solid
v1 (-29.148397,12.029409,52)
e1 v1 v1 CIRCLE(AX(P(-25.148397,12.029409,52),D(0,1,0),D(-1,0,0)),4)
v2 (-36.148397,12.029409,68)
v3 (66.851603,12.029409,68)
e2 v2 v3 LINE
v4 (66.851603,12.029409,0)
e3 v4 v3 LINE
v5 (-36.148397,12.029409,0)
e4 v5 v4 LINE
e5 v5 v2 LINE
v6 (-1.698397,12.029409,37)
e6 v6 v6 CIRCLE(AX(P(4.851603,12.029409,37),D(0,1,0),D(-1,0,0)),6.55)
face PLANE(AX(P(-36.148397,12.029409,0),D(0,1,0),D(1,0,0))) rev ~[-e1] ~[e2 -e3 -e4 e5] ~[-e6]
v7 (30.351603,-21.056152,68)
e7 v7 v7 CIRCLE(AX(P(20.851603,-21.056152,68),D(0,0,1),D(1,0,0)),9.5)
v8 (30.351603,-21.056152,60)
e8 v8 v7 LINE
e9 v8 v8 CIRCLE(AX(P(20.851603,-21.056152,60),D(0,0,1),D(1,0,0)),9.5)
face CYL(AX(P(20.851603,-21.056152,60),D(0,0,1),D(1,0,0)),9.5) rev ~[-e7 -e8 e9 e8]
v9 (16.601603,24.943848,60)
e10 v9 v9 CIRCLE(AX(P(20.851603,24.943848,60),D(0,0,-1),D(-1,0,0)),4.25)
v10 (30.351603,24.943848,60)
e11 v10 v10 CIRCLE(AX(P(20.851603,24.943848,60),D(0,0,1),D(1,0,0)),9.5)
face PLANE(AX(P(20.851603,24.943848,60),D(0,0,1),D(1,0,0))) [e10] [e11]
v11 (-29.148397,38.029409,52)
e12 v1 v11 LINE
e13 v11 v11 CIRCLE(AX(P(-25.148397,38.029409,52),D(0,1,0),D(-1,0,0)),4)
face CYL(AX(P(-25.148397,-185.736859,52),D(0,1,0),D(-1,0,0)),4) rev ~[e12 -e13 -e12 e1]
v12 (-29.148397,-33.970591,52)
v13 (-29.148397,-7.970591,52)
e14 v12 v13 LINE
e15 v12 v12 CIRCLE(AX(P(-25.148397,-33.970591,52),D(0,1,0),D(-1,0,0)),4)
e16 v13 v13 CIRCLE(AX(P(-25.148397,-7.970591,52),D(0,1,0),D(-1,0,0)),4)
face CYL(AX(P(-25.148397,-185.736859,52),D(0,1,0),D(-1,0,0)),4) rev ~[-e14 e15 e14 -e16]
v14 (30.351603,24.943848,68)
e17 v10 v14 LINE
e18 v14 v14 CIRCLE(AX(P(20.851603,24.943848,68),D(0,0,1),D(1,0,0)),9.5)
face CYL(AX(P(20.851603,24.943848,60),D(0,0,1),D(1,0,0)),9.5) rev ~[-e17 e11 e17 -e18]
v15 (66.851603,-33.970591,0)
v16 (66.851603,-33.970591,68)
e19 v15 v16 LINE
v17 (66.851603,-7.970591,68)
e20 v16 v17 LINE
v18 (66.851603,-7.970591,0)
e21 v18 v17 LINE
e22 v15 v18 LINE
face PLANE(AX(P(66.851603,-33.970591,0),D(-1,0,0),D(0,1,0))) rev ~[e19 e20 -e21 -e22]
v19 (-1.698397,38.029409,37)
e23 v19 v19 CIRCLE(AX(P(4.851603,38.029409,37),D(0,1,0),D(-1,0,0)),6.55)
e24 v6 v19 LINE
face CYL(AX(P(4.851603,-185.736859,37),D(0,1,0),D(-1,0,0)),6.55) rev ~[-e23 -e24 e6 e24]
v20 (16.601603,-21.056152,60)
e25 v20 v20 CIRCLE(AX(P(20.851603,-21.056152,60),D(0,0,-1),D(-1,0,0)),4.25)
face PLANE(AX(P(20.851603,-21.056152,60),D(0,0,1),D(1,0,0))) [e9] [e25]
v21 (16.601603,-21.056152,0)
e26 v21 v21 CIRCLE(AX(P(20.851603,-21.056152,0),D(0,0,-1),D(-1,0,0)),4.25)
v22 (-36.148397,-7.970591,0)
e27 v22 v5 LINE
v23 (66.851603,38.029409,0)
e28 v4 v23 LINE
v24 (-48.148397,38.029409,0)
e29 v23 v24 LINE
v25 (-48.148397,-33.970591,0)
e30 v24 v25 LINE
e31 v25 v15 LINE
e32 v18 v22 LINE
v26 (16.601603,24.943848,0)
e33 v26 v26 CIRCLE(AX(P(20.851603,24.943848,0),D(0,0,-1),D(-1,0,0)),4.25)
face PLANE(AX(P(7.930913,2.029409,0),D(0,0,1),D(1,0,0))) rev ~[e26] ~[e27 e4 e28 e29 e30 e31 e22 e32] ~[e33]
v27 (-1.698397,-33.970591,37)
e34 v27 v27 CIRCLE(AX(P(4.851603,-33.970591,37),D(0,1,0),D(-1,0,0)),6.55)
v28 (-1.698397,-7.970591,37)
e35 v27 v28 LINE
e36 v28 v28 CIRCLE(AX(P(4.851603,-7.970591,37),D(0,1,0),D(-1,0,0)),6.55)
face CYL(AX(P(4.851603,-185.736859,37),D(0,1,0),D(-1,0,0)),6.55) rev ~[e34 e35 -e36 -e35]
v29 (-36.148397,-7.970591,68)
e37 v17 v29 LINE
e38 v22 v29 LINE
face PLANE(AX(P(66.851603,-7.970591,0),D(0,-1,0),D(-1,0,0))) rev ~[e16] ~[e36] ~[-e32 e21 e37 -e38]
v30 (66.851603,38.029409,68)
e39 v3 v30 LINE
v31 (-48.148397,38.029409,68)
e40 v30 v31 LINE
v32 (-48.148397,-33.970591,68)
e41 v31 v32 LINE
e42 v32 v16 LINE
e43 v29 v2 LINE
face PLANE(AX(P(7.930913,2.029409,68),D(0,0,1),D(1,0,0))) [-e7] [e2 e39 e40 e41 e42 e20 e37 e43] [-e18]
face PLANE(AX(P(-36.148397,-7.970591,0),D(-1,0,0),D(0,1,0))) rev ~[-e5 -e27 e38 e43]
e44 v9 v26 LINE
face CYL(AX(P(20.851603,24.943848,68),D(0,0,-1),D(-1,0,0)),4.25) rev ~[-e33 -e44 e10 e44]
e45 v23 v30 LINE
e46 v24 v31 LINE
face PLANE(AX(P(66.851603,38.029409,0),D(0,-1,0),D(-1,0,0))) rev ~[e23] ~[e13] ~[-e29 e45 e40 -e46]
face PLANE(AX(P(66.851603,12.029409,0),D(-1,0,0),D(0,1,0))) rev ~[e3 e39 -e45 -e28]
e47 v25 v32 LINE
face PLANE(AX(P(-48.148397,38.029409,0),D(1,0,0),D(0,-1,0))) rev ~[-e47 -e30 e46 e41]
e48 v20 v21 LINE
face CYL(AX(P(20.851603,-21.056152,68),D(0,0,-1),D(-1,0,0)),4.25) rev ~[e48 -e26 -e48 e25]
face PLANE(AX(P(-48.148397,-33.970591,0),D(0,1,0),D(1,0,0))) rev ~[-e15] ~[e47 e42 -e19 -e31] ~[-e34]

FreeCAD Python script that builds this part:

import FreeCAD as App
import Part
import Sketcher

V = App.Vector

doc = App.newDocument("Part")
body = doc.addObject("PartDesign::Body", "Body")

# Sketch on XY plane
sketch1 = doc.addObject("Sketcher::SketchObject", "Sketch")
body.addObject(sketch1)
sketch1.AttachmentSupport = (doc.XY_Plane, [""])
sketch1.MapMode = "FlatFace"
sketch1.addGeometry(Part.LineSegment(V(66.851603, 12.029409, 0), V(66.851603, 38.029409, 0)), False)
sketch1.addGeometry(Part.LineSegment(V(66.851603, 38.029409, 0), V(-48.148397, 38.029409, 0)), False)
sketch1.addGeometry(Part.LineSegment(V(-48.148397, 38.029409, 0), V(-48.148397, -33.970591, 0)), False)
sketch1.addGeometry(Part.LineSegment(V(-48.148397, -33.970591, 0), V(66.851603, -33.970591, 0)), False)
sketch1.addGeometry(Part.LineSegment(V(66.851603, -33.970591, 0), V(66.851603, -7.970591, 0)), False)
sketch1.addGeometry(Part.LineSegment(V(66.851603, -7.970591, 0), V(-36.148397, -7.970591, 0)), False)
sketch1.addGeometry(Part.LineSegment(V(-36.148397, -7.970591, 0), V(-36.148397, 12.029409, 0)), False)
sketch1.addGeometry(Part.LineSegment(V(-36.148397, 12.029409, 0), V(66.851603, 12.029409, 0)), False)
sketch1.addConstraint(Sketcher.Constraint("Coincident", 0, 2, 1, 1))
sketch1.addConstraint(Sketcher.Constraint("Coincident", 1, 2, 2, 1))
sketch1.addConstraint(Sketcher.Constraint("Coincident", 2, 2, 3, 1))
sketch1.addConstraint(Sketcher.Constraint("Coincident", 3, 2, 4, 1))
sketch1.addConstraint(Sketcher.Constraint("Coincident", 4, 2, 5, 1))
sketch1.addConstraint(Sketcher.Constraint("Coincident", 5, 2, 6, 1))
sketch1.addConstraint(Sketcher.Constraint("Coincident", 6, 2, 7, 1))
sketch1.addConstraint(Sketcher.Constraint("Coincident", 7, 2, 0, 1))
sketch1.addConstraint(Sketcher.Constraint("Vertical", 0))
sketch1.addConstraint(Sketcher.Constraint("Horizontal", 1))
sketch1.addConstraint(Sketcher.Constraint("Vertical", 2))
sketch1.addConstraint(Sketcher.Constraint("Horizontal", 3))
sketch1.addConstraint(Sketcher.Constraint("Vertical", 4))
sketch1.addConstraint(Sketcher.Constraint("Horizontal", 5))
sketch1.addConstraint(Sketcher.Constraint("Vertical", 6))
sketch1.addConstraint(Sketcher.Constraint("Horizontal", 7))
sketch1.addConstraint(Sketcher.Constraint("Vertical", 0, 2, 3, 2))
sketch1.addConstraint(Sketcher.Constraint("Equal", 0, 4))
sketch1.addConstraint(Sketcher.Constraint("DistanceX", 1, 2, 1, 1, 115.0))
sketch1.addConstraint(Sketcher.Constraint("DistanceX", 5, 2, 5, 1, 103.0))
sketch1.addConstraint(Sketcher.Constraint("DistanceY", 0, 1, 0, 2, 26.0))
sketch1.addConstraint(Sketcher.Constraint("DistanceY", 2, 2, 2, 1, 72.0))
sketch1.addConstraint(Sketcher.Constraint("DistanceY", -1, 1, 0, 2, 38.029409))
sketch1.addConstraint(Sketcher.Constraint("DistanceX", -1, 1, 0, 2, 66.851603))
pad1 = doc.addObject("PartDesign::Pad", "Pad")
body.addObject(pad1)
pad1.Profile = sketch1
pad1.Length = 68

# Sketch on XY plane
sketch2 = doc.addObject("Sketcher::SketchObject", "Sketch001")
body.addObject(sketch2)
sketch2.AttachmentSupport = (doc.XY_Plane, [""])
sketch2.MapMode = "FlatFace"
sketch2.AttachmentOffset = App.Placement(V(0, 0, 68), App.Rotation())
sketch2.addGeometry(Part.Circle(V(20.851603, 24.943848, 0), V(0, 0, 1), 4.25), False)
sketch2.addGeometry(Part.Circle(V(20.851603, -21.056152, 0), V(0, 0, 1), 4.25), False)
sketch2.addConstraint(Sketcher.Constraint("Equal", 0, 1))
sketch2.addConstraint(Sketcher.Constraint("Vertical", 0, 3, 1, 3))
sketch2.addConstraint(Sketcher.Constraint("Diameter", 0, 8.5))
sketch2.addConstraint(Sketcher.Constraint("DistanceY", 1, 3, 0, 3, 46.0))
sketch2.addConstraint(Sketcher.Constraint("DistanceX", -1, 1, 0, 3, 20.851603))
sketch2.addConstraint(Sketcher.Constraint("DistanceY", -1, 1, 0, 3, 24.943848))
doc.recompute()
hole = doc.addObject("PartDesign::Hole", "Hole")
body.addObject(hole)
hole.Profile = sketch2
hole.ThreadType = "None"
hole.Diameter = 8.5
hole.DepthType = "ThroughAll"
hole.HoleCutType = "Counterbore"
hole.HoleCutDiameter = 19
hole.HoleCutDepth = 8

# Sketch on XZ plane
sketch3 = doc.addObject("Sketcher::SketchObject", "Sketch002")
body.addObject(sketch3)
sketch3.AttachmentSupport = (doc.XZ_Plane, [""])
sketch3.MapMode = "FlatFace"
sketch3.AttachmentOffset = App.Placement(V(0, 0, 33.970591), App.Rotation())
sketch3.addGeometry(Part.Circle(V(4.851603, 37, 0), V(0, 0, 1), 6.55), False)
sketch3.addConstraint(Sketcher.Constraint("Diameter", 0, 13.1))
sketch3.addConstraint(Sketcher.Constraint("DistanceY", -1, 1, 0, 3, 37.0))
sketch3.addConstraint(Sketcher.Constraint("DistanceX", -1, 1, 0, 3, 4.851603))
doc.recompute()
hole2 = doc.addObject("PartDesign::Hole", "Hole001")
body.addObject(hole2)
hole2.Profile = sketch3
hole2.ThreadType = "None"
hole2.Diameter = 13.1
hole2.DepthType = "ThroughAll"

# Sketch on XZ plane
sketch4 = doc.addObject("Sketcher::SketchObject", "Sketch003")
body.addObject(sketch4)
sketch4.AttachmentSupport = (doc.XZ_Plane, [""])
sketch4.MapMode = "FlatFace"
sketch4.AttachmentOffset = App.Placement(V(0, 0, 33.970591), App.Rotation())
sketch4.addGeometry(Part.Circle(V(-25.148397, 52, 0), V(0, 0, 1), 4), False)
sketch4.addConstraint(Sketcher.Constraint("Diameter", 0, 8.0))
sketch4.addConstraint(Sketcher.Constraint("DistanceY", -1, 1, 0, 3, 52.0))
sketch4.addConstraint(Sketcher.Constraint("DistanceX", 0, 3, -1, 1, 25.148397))
doc.recompute()
hole3 = doc.addObject("PartDesign::Hole", "Hole002")
body.addObject(hole3)
hole3.Profile = sketch4
hole3.ThreadType = "None"
hole3.Diameter = 8
hole3.DepthType = "ThroughAll"

doc.recompute()
